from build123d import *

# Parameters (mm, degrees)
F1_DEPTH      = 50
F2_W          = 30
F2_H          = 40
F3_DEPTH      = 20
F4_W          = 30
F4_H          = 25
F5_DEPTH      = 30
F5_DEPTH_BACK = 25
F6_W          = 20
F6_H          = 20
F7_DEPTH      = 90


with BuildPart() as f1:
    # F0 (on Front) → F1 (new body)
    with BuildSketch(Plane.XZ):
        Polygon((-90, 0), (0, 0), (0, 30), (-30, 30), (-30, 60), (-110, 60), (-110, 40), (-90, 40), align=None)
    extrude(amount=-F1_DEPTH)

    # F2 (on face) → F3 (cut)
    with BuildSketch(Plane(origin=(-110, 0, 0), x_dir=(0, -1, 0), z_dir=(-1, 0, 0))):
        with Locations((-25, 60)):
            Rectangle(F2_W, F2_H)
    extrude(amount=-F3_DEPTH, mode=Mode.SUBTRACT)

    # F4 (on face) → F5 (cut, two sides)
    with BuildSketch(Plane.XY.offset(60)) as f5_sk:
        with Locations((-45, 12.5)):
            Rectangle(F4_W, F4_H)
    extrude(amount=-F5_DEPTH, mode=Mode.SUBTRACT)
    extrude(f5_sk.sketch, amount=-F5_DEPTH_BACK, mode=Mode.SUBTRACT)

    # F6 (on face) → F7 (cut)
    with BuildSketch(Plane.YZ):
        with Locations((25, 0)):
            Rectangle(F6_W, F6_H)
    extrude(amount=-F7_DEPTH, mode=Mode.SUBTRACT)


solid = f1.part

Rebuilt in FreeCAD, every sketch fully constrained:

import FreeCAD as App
import Part
import Sketcher
from FreeCAD import Vector
Q = App.Units.Quantity


def add_polygon(sketch, points):
    """Adds a closed chain of lines whose ends are joined by coincident constraints."""
    first, n = sketch.GeometryCount, len(points)
    for a, b in zip(points, points[1:] + points[:1]):
        sketch.addGeometry(Part.LineSegment(App.Vector(*a, 0), App.Vector(*b, 0)), False)
    for i in range(n):
        sketch.addConstraint(Sketcher.Constraint("Coincident", first + i, 2, first + (i + 1) % n, 1))

doc = App.newDocument("Part")
body = doc.addObject("PartDesign::Body", "Body")

# Sketch on XZ plane
sketch1 = doc.addObject("Sketcher::SketchObject", "Sketch")
body.addObject(sketch1)
sketch1.AttachmentSupport = (doc.XZ_Plane, [""])
sketch1.MapMode = "FlatFace"
add_polygon(sketch1, [(-90, 0), (0, 0), (0, 30), (-30, 30), (-30, 60), (-110, 60), (-110, 40), (-90, 40)])  # lines 0-7
sketch1.addConstraint([
    Sketcher.Constraint("Horizontal", 0),
    Sketcher.Constraint("Vertical", 1),
    Sketcher.Constraint("Horizontal", 2),
    Sketcher.Constraint("Vertical", 3),
    Sketcher.Constraint("Horizontal", 4),
    Sketcher.Constraint("Vertical", 5),
    Sketcher.Constraint("Horizontal", 6),
    Sketcher.Constraint("Vertical", 7),
    Sketcher.Constraint("Coincident", 0, 2, -1, 1),
    Sketcher.Constraint("Equal", 2, 1),
    Sketcher.Constraint("Equal", 1, 3),
    Sketcher.Constraint("Equal", 6, 5),
    Sketcher.Constraint("DistanceX", 0, 1, 0, 2, Q("90 mm")),
    Sketcher.Constraint("DistanceX", 2, 2, 2, 1, Q("30 mm")),
    Sketcher.Constraint("DistanceX", 4, 2, 4, 1, Q("80 mm")),
])
pad1 = doc.addObject("PartDesign::Pad", "Pad")
body.addObject(pad1)
pad1.Profile = sketch1
pad1.Length = 50
pad1.Reversed = True

# Sketch on YZ plane
sketch2 = doc.addObject("Sketcher::SketchObject", "Sketch001")
body.addObject(sketch2)
sketch2.AttachmentSupport = (doc.YZ_Plane, [""])
sketch2.MapMode = "FlatFace"
sketch2.AttachmentOffset = App.Placement(Vector(0, 0, -110), App.Rotation())
add_polygon(sketch2, [(40, 80), (40, 40), (10, 40), (10, 80)])  # lines 0-3
sketch2.addConstraint([
    Sketcher.Constraint("Vertical", 0),
    Sketcher.Constraint("Horizontal", 1),
    Sketcher.Constraint("Vertical", 2),
    Sketcher.Constraint("Horizontal", 3),
    Sketcher.Constraint("DistanceX", 1, 2, 1, 1, Q("30 mm")),
    Sketcher.Constraint("DistanceY", 0, 2, 0, 1, Q("40 mm")),
    Sketcher.Constraint("DistanceX", -1, 1, 0, 2, Q("40 mm")),
    Sketcher.Constraint("DistanceY", -1, 1, 0, 2, Q("40 mm")),
])
pocket1 = doc.addObject("PartDesign::Pocket", "Pocket")
body.addObject(pocket1)
pocket1.Profile = sketch2
pocket1.Length = 20
pocket1.Reversed = True

# Sketch on XY plane
sketch3 = doc.addObject("Sketcher::SketchObject", "Sketch002")
body.addObject(sketch3)
sketch3.AttachmentSupport = (doc.XY_Plane, [""])
sketch3.MapMode = "FlatFace"
sketch3.AttachmentOffset = App.Placement(Vector(0, 0, 60), App.Rotation())
add_polygon(sketch3, [(-60, 25), (-60, 0), (-30, 0), (-30, 25)])  # lines 0-3
sketch3.addConstraint([
    Sketcher.Constraint("Vertical", 0),
    Sketcher.Constraint("Horizontal", 1),
    Sketcher.Constraint("Vertical", 2),
    Sketcher.Constraint("Horizontal", 3),
    Sketcher.Constraint("PointOnObject", 0, 2, -1),
    Sketcher.Constraint("DistanceX", 1, 1, 1, 2, Q("30 mm")),
    Sketcher.Constraint("DistanceY", 0, 2, 0, 1, Q("25 mm")),
    Sketcher.Constraint("DistanceX", 0, 2, -1, 1, Q("60 mm")),
])
pocket2 = doc.addObject("PartDesign::Pocket", "Pocket001")
body.addObject(pocket2)
pocket2.Profile = sketch3
pocket2.Length = 30
pocket3 = doc.addObject("PartDesign::Pocket", "Pocket002")
body.addObject(pocket3)
pocket3.Profile = sketch3
pocket3.Length = 25

# Sketch on YZ plane
sketch4 = doc.addObject("Sketcher::SketchObject", "Sketch003")
body.addObject(sketch4)
sketch4.AttachmentSupport = (doc.YZ_Plane, [""])
sketch4.MapMode = "FlatFace"
add_polygon(sketch4, [(15, 10), (15, -10), (35, -10), (35, 10)])  # lines 0-3
sketch4.addConstraint([
    Sketcher.Constraint("Vertical", 0),
    Sketcher.Constraint("Horizontal", 1),
    Sketcher.Constraint("Vertical", 2),
    Sketcher.Constraint("Horizontal", 3),
    Sketcher.Constraint("Equal", 3, 0),
    Sketcher.Constraint("DistanceX", 1, 1, 1, 2, Q("20 mm")),
    Sketcher.Constraint("DistanceX", -1, 1, 0, 2, Q("15 mm")),
    Sketcher.Constraint("DistanceY", 0, 2, -1, 1, Q("10 mm")),
])
pocket4 = doc.addObject("PartDesign::Pocket", "Pocket003")
body.addObject(pocket4)
pocket4.Profile = sketch4
pocket4.Length = 90

doc.recompute()
